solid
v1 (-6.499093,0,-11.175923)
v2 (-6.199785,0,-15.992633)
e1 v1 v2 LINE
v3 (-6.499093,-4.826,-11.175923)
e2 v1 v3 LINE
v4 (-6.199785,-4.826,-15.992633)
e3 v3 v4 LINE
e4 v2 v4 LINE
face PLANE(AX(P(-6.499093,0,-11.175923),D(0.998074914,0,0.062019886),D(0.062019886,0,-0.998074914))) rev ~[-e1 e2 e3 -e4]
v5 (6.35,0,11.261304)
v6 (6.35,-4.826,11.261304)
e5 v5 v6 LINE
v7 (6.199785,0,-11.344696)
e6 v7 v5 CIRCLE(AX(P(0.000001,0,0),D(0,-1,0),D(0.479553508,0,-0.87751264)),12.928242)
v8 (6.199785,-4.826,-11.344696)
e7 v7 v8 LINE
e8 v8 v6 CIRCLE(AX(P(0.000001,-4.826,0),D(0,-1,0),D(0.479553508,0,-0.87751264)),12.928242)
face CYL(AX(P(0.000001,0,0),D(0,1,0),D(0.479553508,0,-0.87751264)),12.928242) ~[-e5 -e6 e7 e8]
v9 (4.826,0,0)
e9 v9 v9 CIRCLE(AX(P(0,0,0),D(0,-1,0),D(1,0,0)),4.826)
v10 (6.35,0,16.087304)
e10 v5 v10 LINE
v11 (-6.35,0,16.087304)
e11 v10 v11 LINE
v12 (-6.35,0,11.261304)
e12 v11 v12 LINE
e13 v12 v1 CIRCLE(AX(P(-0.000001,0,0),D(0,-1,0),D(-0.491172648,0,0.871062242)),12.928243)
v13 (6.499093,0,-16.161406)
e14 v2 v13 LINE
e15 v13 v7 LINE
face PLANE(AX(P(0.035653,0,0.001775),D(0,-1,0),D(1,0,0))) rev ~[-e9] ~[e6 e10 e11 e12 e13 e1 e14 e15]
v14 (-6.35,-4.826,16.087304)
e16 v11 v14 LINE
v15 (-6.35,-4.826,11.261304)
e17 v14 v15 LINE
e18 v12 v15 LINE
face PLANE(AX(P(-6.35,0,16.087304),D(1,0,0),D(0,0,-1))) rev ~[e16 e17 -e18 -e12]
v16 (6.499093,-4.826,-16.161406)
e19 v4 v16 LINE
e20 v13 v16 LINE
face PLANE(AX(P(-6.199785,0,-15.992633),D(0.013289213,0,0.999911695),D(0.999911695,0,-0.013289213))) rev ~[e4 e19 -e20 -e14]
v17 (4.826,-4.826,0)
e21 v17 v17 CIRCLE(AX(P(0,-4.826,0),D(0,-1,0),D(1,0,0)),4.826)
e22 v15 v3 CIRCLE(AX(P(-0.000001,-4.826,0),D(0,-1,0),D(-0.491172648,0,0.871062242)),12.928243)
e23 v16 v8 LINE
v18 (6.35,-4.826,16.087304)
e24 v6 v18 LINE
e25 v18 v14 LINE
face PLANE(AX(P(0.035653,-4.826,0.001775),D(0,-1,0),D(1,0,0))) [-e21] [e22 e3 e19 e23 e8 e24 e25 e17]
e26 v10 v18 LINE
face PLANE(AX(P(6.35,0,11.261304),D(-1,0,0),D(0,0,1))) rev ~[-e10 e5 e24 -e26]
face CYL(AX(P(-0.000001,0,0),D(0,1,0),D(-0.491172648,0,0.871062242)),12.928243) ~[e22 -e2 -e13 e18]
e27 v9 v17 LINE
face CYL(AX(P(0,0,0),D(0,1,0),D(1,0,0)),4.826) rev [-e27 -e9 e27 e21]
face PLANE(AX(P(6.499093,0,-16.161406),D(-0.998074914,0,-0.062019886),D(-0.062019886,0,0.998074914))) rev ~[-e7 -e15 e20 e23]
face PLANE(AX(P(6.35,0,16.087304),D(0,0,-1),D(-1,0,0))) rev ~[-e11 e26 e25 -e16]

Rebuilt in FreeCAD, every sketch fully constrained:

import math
import FreeCAD as App
import Part
import Sketcher
Q = App.Units.Quantity

doc = App.newDocument("Part")
params = doc.addObject("Spreadsheet::Sheet", "Params")
for row, (alias, value) in enumerate([
    ("sketch1_diameter", "0.38 in"),
    ("sketch1_width", "0.5 in"),
    ("sketch1_length", "0.5 in"),
    ("sketch1_height", "0.19 in"),
    ("sketch1_length2", "0.19 in"),
    ("pad1_length", "0.19 in"),
], start=1):
    params.set(f"A{row}", alias)
    params.set(f"B{row}", "=" + value)
    params.setAlias(f"B{row}", alias)

body = doc.addObject("PartDesign::Body", "Body")

# Sketch on XZ plane
sketch1 = doc.addObject("Sketcher::SketchObject", "Sketch")
body.addObject(sketch1)
sketch1.AttachmentSupport = (doc.XZ_Plane, [""])
sketch1.MapMode = "FlatFace"
sketch1.addGeometry(Part.LineSegment(App.Vector(-6.2, -16, 0), App.Vector(6.5, -16.2, 0)), False)
sketch1.addGeometry(Part.LineSegment(App.Vector(6.5, -16.2, 0), App.Vector(6.2, -11.3, 0)), False)
sketch1.addGeometry(Part.ArcOfCircle(Part.Circle(App.Vector(0, 0, 0), App.Vector(0, 0, 1), 12.9), math.radians(-61), math.radians(61)), False)
sketch1.addGeometry(Part.LineSegment(App.Vector(6.3, 11.3, 0), App.Vector(6.3, 16.1, 0)), False)
sketch1.addGeometry(Part.LineSegment(App.Vector(6.3, 16.1, 0), App.Vector(-6.3, 16.1, 0)), False)
sketch1.addGeometry(Part.LineSegment(App.Vector(-6.3, 16.1, 0), App.Vector(-6.3, 11.3, 0)), False)
sketch1.addGeometry(Part.ArcOfCircle(Part.Circle(App.Vector(0, 0, 0), App.Vector(0, 0, 1), 12.9), math.radians(119), math.radians(240)), False)
sketch1.addGeometry(Part.LineSegment(App.Vector(-6.5, -11.2, 0), App.Vector(-6.2, -16, 0)), False)
sketch1.addGeometry(Part.Circle(App.Vector(0, 0, 0), App.Vector(0, 0, 1), 4.8), False)
sketch1.addConstraint(Sketcher.Constraint("Coincident", 0, 2, 1, 1))
sketch1.addConstraint(Sketcher.Constraint("Coincident", 1, 2, 2, 1))
sketch1.addConstraint(Sketcher.Constraint("Coincident", 2, 2, 3, 1))
sketch1.addConstraint(Sketcher.Constraint("Coincident", 3, 2, 4, 1))
sketch1.addConstraint(Sketcher.Constraint("Coincident", 4, 2, 5, 1))
sketch1.addConstraint(Sketcher.Constraint("Coincident", 5, 2, 6, 1))
sketch1.addConstraint(Sketcher.Constraint("Coincident", 6, 2, 7, 1))
sketch1.addConstraint(Sketcher.Constraint("Coincident", 7, 2, 0, 1))
sketch1.addConstraint(Sketcher.Constraint("Vertical", 3))
sketch1.addConstraint(Sketcher.Constraint("Horizontal", 4))
sketch1.addConstraint(Sketcher.Constraint("Vertical", 5))
sketch1.addConstraint(Sketcher.Constraint("Coincident", 2, 3, -1, 1))
sketch1.addConstraint(Sketcher.Constraint("Coincident", 6, 3, -1, 1))
sketch1.addConstraint(Sketcher.Constraint("Coincident", 8, 3, -1, 1))
sketch1.addConstraint(Sketcher.Constraint("Equal", 2, 6))
sketch1.addConstraint(Sketcher.Constraint("Parallel", 1, 7))
sketch1.addConstraint(Sketcher.Constraint("Horizontal", 2, 2, 5, 2))
sketch1.addConstraint(Sketcher.Constraint("Equal", 1, 7))
sketch1.addConstraint(Sketcher.Constraint("Diameter", 8, Q("0.38 in")))
sketch1.addConstraint(Sketcher.Constraint("DistanceX", 4, 2, 4, 1, Q("0.5 in")))
sketch1.addConstraint(Sketcher.Constraint("Distance", 0, Q("0.5 in")))
sketch1.addConstraint(Sketcher.Constraint("DistanceY", 3, 1, 3, 2, Q("0.19 in")))
sketch1.addConstraint(Sketcher.Constraint("Distance", 1, Q("0.19 in")))
sketch1.addConstraint(Sketcher.Constraint("DistanceY", 1, 2, 2, 2, Q("0.89 in")))
sketch1.addConstraint(Sketcher.Constraint("Radius", 2, 12.928242))
sketch1.addConstraint(Sketcher.Constraint("DistanceY", 0, 2, 1, 2, 4.81671))
sketch1.setExpression("Constraints[18]", "Params.sketch1_diameter")
sketch1.setExpression("Constraints[19]", "Params.sketch1_width")
sketch1.setExpression("Constraints[20]", "Params.sketch1_length")
sketch1.setExpression("Constraints[21]", "Params.sketch1_height")
sketch1.setExpression("Constraints[22]", "Params.sketch1_length2")
pad1 = doc.addObject("PartDesign::Pad", "Pad")
body.addObject(pad1)
pad1.Profile = sketch1
pad1.setExpression("Length", "Params.pad1_length")

doc.recompute()
